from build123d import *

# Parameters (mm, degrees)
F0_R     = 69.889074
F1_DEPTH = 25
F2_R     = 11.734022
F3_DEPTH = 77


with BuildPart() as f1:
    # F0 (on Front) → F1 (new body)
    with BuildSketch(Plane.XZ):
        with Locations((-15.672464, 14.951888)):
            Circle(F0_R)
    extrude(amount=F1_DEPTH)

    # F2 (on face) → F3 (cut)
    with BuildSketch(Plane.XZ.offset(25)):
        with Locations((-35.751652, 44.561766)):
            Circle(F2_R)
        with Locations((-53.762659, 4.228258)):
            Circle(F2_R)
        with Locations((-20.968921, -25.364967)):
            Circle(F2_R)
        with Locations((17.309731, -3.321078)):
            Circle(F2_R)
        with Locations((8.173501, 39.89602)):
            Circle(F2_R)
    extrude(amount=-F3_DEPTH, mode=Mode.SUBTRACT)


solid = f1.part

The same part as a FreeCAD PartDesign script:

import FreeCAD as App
import Part
import Sketcher
from FreeCAD import Vector
Q = App.Units.Quantity

doc = App.newDocument("Part")
body = doc.addObject("PartDesign::Body", "Body")

sketch1 = doc.addObject("Sketcher::SketchObject", "Sketch")
body.addObject(sketch1)
sketch1.AttachmentSupport = (doc.XZ_Plane, [""])
sketch1.MapMode = "FlatFace"
sketch1.addGeometry(Part.Circle(Vector(-16, 15, 0), Vector(0, 0, 1), 70), False)
sketch1.addConstraint([
    Sketcher.Constraint("Diameter", 0, Q("139.778148 mm")),
    Sketcher.Constraint("DistanceX", 0, 3, -1, 1, Q("15.672464 mm")),
    Sketcher.Constraint("DistanceY", -1, 1, 0, 3, Q("14.951888 mm")),
])
pad1 = doc.addObject("PartDesign::Pad", "Pad")
body.addObject(pad1)
pad1.Profile = sketch1
pad1.Length = 25

sketch2 = doc.addObject("Sketcher::SketchObject", "Sketch001")
body.addObject(sketch2)
sketch2.AttachmentSupport = (doc.XZ_Plane, [""])
sketch2.MapMode = "FlatFace"
sketch2.AttachmentOffset = App.Placement(Vector(0, 0, 25), App.Rotation())
sketch2.addGeometry([
    Part.Circle(Vector(-36, 45, 0), Vector(0, 0, 1), 12),
    Part.Circle(Vector(-54, 4, 0), Vector(0, 0, 1), 12),
    Part.Circle(Vector(-21, -25, 0), Vector(0, 0, 1), 12),
    Part.Circle(Vector(17, -3, 0), Vector(0, 0, 1), 12),
    Part.Circle(Vector(8, 40, 0), Vector(0, 0, 1), 12),
], False)
sketch2.addConstraint([
    Sketcher.Constraint("Equal", 0, 1),
    Sketcher.Constraint("Equal", 1, 2),
    Sketcher.Constraint("Equal", 2, 3),
    Sketcher.Constraint("Equal", 3, 4),
    Sketcher.Constraint("Diameter", 0, Q("23.468044 mm")),
    Sketcher.Constraint("DistanceX", -1, 1, 4, 3, Q("8.173501 mm")),
    Sketcher.Constraint("DistanceX", 1, 3, -1, 1, Q("53.762659 mm")),
    Sketcher.Constraint("DistanceY", -1, 1, 1, 3, Q("4.228258 mm")),
    Sketcher.Constraint("DistanceX", 2, 3, -1, 1, Q("20.968921 mm")),
    Sketcher.Constraint("DistanceX", -1, 1, 3, 3, Q("17.309731 mm")),
    Sketcher.Constraint("DistanceY", 3, 3, -1, 1, Q("3.321078 mm")),
    Sketcher.Constraint("DistanceY", -1, 1, 4, 3, Q("39.89602 mm")),
    Sketcher.Constraint("DistanceX", 0, 3, 2, 3, Q("14.782731 mm")),
    Sketcher.Constraint("DistanceY", 2, 3, 3, 3, Q("22.043889 mm")),
    Sketcher.Constraint("DistanceY", -1, 1, 0, 3, Q("44.561766 mm")),
])
pocket1 = doc.addObject("PartDesign::Pocket", "Pocket")
body.addObject(pocket1)
pocket1.Profile = sketch2
pocket1.Length = 77

doc.recompute()
